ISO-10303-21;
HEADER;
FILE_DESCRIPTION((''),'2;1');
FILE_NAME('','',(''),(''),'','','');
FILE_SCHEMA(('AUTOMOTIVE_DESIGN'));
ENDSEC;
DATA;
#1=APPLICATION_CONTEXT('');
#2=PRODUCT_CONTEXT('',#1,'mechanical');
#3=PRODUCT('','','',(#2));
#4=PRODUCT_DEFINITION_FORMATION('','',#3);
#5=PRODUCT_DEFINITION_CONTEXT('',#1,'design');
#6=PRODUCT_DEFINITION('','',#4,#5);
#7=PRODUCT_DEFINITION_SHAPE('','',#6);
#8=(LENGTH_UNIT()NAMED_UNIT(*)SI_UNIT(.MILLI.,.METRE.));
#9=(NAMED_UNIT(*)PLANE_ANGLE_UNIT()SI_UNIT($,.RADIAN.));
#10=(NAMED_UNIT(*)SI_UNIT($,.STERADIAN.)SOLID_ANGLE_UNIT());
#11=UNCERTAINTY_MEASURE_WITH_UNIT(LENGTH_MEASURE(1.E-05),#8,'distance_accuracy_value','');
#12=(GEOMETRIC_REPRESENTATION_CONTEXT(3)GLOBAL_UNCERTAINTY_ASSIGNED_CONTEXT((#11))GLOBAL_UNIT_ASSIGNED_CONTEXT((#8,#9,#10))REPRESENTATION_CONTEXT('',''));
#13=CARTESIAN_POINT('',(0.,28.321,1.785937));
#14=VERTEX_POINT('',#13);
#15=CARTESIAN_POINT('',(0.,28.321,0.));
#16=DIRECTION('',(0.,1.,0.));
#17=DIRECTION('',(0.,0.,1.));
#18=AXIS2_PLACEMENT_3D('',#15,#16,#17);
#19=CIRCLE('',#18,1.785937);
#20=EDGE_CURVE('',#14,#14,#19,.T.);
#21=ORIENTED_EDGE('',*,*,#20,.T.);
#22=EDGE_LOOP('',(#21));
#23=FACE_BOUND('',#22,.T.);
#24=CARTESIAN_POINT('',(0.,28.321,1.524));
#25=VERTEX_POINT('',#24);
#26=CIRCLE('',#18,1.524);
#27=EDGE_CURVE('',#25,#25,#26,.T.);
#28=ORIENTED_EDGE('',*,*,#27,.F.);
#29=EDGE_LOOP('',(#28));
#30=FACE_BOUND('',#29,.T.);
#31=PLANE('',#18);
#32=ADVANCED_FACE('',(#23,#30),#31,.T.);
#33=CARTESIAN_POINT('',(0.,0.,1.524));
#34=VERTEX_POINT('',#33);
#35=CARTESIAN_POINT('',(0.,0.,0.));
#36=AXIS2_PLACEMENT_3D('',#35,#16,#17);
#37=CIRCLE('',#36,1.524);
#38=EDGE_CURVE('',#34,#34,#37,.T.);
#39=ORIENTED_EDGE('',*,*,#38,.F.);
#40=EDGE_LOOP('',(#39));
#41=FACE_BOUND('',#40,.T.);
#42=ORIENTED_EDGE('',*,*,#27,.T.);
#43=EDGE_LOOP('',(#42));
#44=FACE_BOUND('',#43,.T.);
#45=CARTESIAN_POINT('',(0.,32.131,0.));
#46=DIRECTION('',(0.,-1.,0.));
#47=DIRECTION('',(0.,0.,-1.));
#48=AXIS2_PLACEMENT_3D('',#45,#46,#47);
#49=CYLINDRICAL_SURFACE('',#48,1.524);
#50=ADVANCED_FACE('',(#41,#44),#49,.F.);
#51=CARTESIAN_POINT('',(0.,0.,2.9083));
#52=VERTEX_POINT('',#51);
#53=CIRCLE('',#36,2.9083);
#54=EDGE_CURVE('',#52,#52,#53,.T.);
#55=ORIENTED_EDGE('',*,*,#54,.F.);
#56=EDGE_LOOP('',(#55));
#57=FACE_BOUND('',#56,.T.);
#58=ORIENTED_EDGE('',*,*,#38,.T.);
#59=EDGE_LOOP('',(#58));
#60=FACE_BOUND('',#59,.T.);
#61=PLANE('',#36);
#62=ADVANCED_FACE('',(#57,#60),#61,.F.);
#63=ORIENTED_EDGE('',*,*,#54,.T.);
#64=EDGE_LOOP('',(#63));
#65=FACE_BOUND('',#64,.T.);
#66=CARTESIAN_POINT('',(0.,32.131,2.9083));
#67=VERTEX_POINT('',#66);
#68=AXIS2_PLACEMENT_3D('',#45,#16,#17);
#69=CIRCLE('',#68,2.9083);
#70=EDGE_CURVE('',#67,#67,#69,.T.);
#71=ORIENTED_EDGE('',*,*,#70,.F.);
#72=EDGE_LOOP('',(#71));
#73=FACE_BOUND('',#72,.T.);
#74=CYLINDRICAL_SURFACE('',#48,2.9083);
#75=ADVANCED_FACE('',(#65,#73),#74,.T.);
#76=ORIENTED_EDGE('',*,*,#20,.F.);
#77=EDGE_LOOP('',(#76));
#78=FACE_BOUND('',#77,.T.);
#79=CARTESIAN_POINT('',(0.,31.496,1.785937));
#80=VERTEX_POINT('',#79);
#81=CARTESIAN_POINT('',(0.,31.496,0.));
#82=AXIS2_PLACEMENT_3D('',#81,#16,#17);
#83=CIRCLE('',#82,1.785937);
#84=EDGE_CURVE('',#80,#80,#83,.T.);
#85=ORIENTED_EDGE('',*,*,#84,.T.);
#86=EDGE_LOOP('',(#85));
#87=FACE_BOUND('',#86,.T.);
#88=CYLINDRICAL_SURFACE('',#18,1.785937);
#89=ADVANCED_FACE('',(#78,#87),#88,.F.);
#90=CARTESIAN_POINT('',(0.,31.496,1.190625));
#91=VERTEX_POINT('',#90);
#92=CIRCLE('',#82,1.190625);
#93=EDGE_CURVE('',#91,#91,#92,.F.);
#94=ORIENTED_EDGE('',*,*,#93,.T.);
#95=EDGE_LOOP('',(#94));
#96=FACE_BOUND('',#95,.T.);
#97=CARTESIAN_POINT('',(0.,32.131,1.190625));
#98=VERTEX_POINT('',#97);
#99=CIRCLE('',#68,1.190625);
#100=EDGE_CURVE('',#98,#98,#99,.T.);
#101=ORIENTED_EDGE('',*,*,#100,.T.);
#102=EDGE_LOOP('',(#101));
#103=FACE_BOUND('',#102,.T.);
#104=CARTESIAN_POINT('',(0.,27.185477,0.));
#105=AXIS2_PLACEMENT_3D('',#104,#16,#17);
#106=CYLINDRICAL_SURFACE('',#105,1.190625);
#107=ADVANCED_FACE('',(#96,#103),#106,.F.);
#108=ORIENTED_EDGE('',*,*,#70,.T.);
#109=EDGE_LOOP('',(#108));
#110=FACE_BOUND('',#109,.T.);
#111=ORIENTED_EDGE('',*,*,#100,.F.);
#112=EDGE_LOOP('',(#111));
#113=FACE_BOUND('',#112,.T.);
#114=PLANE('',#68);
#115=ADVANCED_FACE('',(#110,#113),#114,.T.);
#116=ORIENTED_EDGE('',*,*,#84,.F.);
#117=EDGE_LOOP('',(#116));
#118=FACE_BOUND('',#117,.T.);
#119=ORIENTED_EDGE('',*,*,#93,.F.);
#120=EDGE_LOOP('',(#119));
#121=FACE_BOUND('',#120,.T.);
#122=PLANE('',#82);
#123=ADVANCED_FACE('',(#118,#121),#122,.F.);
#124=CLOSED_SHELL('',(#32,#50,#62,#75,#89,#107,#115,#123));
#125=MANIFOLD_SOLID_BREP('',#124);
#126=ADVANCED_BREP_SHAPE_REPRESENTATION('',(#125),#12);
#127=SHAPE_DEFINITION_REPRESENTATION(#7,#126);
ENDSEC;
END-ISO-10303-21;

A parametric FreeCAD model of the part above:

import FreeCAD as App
import Part
import Sketcher
from FreeCAD import Vector
Q = App.Units.Quantity

doc = App.newDocument("Part")
body = doc.addObject("PartDesign::Body", "Body")

sketch1 = doc.addObject("Sketcher::SketchObject", "Sketch")
body.addObject(sketch1)
sketch1.AttachmentSupport = (doc.XZ_Plane, [""])
sketch1.MapMode = "FlatFace"
sketch1.addGeometry([
    Part.Circle(Vector(0, 0, 0), Vector(0, 0, 1), 2.9),
    Part.Circle(Vector(0, 0, 0), Vector(0, 0, 1), 1.5),
], False)
sketch1.addConstraint([
    Sketcher.Constraint("Coincident", 0, 3, -1, 1),
    Sketcher.Constraint("Coincident", 1, 3, -1, 1),
    Sketcher.Constraint("Diameter", 1, Q("0.12 in")),
    Sketcher.Constraint("Diameter", 0, Q("0.229 in")),
])
pad1 = doc.addObject("PartDesign::Pad", "Pad")
body.addObject(pad1)
pad1.Profile = sketch1
pad1.Length = Q("1.265 in")
pad1.Reversed = True

sketch2 = doc.addObject("Sketcher::SketchObject", "Sketch001")
body.addObject(sketch2)
sketch2.AttachmentSupport = (doc.XZ_Plane, [""])
sketch2.MapMode = "FlatFace"
sketch2.AttachmentOffset = App.Placement(Vector(0, 0, -1.24 * 25.4), App.Rotation())
sketch2.addGeometry([
    Part.Circle(Vector(0, 0, 0), Vector(0, 0, 1), 1.5),
    Part.Circle(Vector(0, 0, 0), Vector(0, 0, 1), 1.2),
], False)
sketch2.addConstraint([
    Sketcher.Constraint("Coincident", 0, 3, -1, 1),
    Sketcher.Constraint("Coincident", 1, 3, -1, 1),
    Sketcher.Constraint("Diameter", 0, Q("0.12 in")),
    Sketcher.Constraint("Diameter", 1, Q("0.09375 in")),
])
pad2 = doc.addObject("PartDesign::Pad", "Pad001")
body.addObject(pad2)
pad2.Profile = sketch2
pad2.Length = Q("0.025 in")
pad2.Reversed = True

sketch3 = doc.addObject("Sketcher::SketchObject", "Sketch002")
body.addObject(sketch3)
sketch3.AttachmentSupport = (doc.XZ_Plane, [""])
sketch3.MapMode = "FlatFace"
sketch3.AttachmentOffset = App.Placement(Vector(0, 0, -1.24 * 25.4), App.Rotation())
sketch3.addGeometry(Part.Circle(Vector(0, 0, 0), Vector(0, 0, 1), 1.8), False)
sketch3.addConstraint([
    Sketcher.Constraint("Coincident", 0, 3, -1, 1),
    Sketcher.Constraint("Diameter", 0, Q("0.140625 in")),
])
pocket1 = doc.addObject("PartDesign::Pocket", "Pocket")
body.addObject(pocket1)
pocket1.Profile = sketch3
pocket1.Length = Q("0.125 in")
pocket1.Reversed = True

doc.recompute()
